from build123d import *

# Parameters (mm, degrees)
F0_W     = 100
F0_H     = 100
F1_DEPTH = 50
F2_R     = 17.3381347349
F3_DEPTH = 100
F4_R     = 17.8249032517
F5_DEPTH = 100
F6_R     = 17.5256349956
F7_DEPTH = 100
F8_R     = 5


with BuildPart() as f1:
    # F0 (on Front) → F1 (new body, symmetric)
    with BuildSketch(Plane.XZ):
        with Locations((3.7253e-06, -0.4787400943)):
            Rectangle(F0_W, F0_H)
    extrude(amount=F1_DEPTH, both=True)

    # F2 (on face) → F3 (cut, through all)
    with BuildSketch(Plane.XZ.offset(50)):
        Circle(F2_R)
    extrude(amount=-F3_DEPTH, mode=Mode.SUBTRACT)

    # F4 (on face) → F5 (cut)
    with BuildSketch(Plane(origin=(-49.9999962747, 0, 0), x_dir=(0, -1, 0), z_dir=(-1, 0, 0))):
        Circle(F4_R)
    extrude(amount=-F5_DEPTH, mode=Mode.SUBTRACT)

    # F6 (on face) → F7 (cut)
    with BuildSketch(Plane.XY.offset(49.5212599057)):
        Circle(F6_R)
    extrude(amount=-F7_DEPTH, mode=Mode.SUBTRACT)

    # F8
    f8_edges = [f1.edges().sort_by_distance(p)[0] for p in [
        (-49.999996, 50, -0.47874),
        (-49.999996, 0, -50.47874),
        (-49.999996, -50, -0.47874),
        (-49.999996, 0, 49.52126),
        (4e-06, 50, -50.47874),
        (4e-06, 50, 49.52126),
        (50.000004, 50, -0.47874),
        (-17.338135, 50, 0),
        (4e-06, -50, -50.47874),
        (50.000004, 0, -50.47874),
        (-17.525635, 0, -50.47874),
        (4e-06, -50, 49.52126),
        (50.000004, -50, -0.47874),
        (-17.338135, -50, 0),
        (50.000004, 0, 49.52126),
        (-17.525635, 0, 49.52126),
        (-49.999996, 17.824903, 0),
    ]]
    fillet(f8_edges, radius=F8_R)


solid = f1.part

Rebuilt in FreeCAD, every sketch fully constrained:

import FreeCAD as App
import Part
import Sketcher
from FreeCAD import Vector


def edges_at(feature, points):
    """Names of the edges that pass closest to the given points."""
    edges = feature.Shape.Edges
    near = lambda p: min(range(len(edges)), key=lambda i: edges[i].distToShape(Part.Vertex(*p))[0])
    return sorted({f"Edge{near(p) + 1}" for p in points})

doc = App.newDocument("Part")
body = doc.addObject("PartDesign::Body", "Body")

sketch1 = doc.addObject("Sketcher::SketchObject", "Sketch")
body.addObject(sketch1)
sketch1.AttachmentSupport = (doc.XZ_Plane, [""])
sketch1.MapMode = "FlatFace"
sketch1.addGeometry([
    Part.LineSegment(Vector(-50, 50, 0), Vector(-50, -50, 0)),
    Part.LineSegment(Vector(-50, -50, 0), Vector(50, -50, 0)),
    Part.LineSegment(Vector(50, -50, 0), Vector(50, 50, 0)),
    Part.LineSegment(Vector(50, 50, 0), Vector(-50, 50, 0)),
], False)
sketch1.addConstraint([
    Sketcher.Constraint("Coincident", 0, 2, 1, 1),
    Sketcher.Constraint("Coincident", 1, 2, 2, 1),
    Sketcher.Constraint("Coincident", 2, 2, 3, 1),
    Sketcher.Constraint("Coincident", 3, 2, 0, 1),
    Sketcher.Constraint("Vertical", 0),
    Sketcher.Constraint("Horizontal", 1),
    Sketcher.Constraint("Vertical", 2),
    Sketcher.Constraint("Horizontal", 3),
    Sketcher.Constraint("Equal", 3, 0),
    Sketcher.Constraint("DistanceX", 1, 1, 1, 2, 100.0),
    Sketcher.Constraint("DistanceY", 0, 2, -1, 1, 50.47874),
    Sketcher.Constraint("DistanceX", 0, 2, -1, 1, 49.999996),
])
pad1 = doc.addObject("PartDesign::Pad", "Pad")
body.addObject(pad1)
pad1.Profile = sketch1
pad1.Length = 100
pad1.Midplane = True

sketch2 = doc.addObject("Sketcher::SketchObject", "Sketch001")
body.addObject(sketch2)
sketch2.AttachmentSupport = (doc.XZ_Plane, [""])
sketch2.MapMode = "FlatFace"
sketch2.AttachmentOffset = App.Placement(Vector(0, 0, 50), App.Rotation())
sketch2.addGeometry(Part.Circle(Vector(0, 0, 0), Vector(0, 0, 1), 17), False)
sketch2.addConstraint([
    Sketcher.Constraint("Coincident", 0, 3, -1, 1),
    Sketcher.Constraint("Diameter", 0, 34.676269),
])
pocket1 = doc.addObject("PartDesign::Pocket", "Pocket")
body.addObject(pocket1)
pocket1.Profile = sketch2
pocket1.Type = "ThroughAll"

sketch3 = doc.addObject("Sketcher::SketchObject", "Sketch002")
body.addObject(sketch3)
sketch3.AttachmentSupport = (doc.YZ_Plane, [""])
sketch3.MapMode = "FlatFace"
sketch3.AttachmentOffset = App.Placement(Vector(0, 0, -49.999996), App.Rotation())
sketch3.addGeometry(Part.Circle(Vector(0, 0, 0), Vector(0, 0, 1), 18), False)
sketch3.addConstraint([
    Sketcher.Constraint("Coincident", 0, 3, -1, 1),
    Sketcher.Constraint("Diameter", 0, 35.649807),
])
pocket2 = doc.addObject("PartDesign::Pocket", "Pocket001")
body.addObject(pocket2)
pocket2.Profile = sketch3
pocket2.Length = 100
pocket2.Reversed = True

sketch4 = doc.addObject("Sketcher::SketchObject", "Sketch003")
body.addObject(sketch4)
sketch4.AttachmentSupport = (doc.XY_Plane, [""])
sketch4.MapMode = "FlatFace"
sketch4.AttachmentOffset = App.Placement(Vector(0, 0, 49.52126), App.Rotation())
sketch4.addGeometry(Part.Circle(Vector(0, 0, 0), Vector(0, 0, 1), 18), False)
sketch4.addConstraint([
    Sketcher.Constraint("Coincident", 0, 3, -1, 1),
    Sketcher.Constraint("Diameter", 0, 35.05127),
])
pocket3 = doc.addObject("PartDesign::Pocket", "Pocket002")
body.addObject(pocket3)
pocket3.Profile = sketch4
pocket3.Length = 100
doc.recompute()

fillet = doc.addObject("PartDesign::Fillet", "Fillet")
body.addObject(fillet)
fillet.Base = (pocket3, edges_at(pocket3, [
    (-50, 50, -0.479),
    (-50, 0, -50.479),
    (-50, -50, -0.479),
    (-50, 0, 49.521),
    (0, 50, -50.479),
    (0, 50, 49.521),
    (50, 50, -0.479),
    (-17.338, 50, 0),
    (0, -50, -50.479),
    (50, 0, -50.479),
    (-17.526, 0, -50.479),
    (0, -50, 49.521),
    (50, -50, -0.479),
    (-17.338, -50, 0),
    (50, 0, 49.521),
    (-17.526, 0, 49.521),
    (-50, 17.825, 0),
]))
fillet.Radius = 5

doc.recompute()
